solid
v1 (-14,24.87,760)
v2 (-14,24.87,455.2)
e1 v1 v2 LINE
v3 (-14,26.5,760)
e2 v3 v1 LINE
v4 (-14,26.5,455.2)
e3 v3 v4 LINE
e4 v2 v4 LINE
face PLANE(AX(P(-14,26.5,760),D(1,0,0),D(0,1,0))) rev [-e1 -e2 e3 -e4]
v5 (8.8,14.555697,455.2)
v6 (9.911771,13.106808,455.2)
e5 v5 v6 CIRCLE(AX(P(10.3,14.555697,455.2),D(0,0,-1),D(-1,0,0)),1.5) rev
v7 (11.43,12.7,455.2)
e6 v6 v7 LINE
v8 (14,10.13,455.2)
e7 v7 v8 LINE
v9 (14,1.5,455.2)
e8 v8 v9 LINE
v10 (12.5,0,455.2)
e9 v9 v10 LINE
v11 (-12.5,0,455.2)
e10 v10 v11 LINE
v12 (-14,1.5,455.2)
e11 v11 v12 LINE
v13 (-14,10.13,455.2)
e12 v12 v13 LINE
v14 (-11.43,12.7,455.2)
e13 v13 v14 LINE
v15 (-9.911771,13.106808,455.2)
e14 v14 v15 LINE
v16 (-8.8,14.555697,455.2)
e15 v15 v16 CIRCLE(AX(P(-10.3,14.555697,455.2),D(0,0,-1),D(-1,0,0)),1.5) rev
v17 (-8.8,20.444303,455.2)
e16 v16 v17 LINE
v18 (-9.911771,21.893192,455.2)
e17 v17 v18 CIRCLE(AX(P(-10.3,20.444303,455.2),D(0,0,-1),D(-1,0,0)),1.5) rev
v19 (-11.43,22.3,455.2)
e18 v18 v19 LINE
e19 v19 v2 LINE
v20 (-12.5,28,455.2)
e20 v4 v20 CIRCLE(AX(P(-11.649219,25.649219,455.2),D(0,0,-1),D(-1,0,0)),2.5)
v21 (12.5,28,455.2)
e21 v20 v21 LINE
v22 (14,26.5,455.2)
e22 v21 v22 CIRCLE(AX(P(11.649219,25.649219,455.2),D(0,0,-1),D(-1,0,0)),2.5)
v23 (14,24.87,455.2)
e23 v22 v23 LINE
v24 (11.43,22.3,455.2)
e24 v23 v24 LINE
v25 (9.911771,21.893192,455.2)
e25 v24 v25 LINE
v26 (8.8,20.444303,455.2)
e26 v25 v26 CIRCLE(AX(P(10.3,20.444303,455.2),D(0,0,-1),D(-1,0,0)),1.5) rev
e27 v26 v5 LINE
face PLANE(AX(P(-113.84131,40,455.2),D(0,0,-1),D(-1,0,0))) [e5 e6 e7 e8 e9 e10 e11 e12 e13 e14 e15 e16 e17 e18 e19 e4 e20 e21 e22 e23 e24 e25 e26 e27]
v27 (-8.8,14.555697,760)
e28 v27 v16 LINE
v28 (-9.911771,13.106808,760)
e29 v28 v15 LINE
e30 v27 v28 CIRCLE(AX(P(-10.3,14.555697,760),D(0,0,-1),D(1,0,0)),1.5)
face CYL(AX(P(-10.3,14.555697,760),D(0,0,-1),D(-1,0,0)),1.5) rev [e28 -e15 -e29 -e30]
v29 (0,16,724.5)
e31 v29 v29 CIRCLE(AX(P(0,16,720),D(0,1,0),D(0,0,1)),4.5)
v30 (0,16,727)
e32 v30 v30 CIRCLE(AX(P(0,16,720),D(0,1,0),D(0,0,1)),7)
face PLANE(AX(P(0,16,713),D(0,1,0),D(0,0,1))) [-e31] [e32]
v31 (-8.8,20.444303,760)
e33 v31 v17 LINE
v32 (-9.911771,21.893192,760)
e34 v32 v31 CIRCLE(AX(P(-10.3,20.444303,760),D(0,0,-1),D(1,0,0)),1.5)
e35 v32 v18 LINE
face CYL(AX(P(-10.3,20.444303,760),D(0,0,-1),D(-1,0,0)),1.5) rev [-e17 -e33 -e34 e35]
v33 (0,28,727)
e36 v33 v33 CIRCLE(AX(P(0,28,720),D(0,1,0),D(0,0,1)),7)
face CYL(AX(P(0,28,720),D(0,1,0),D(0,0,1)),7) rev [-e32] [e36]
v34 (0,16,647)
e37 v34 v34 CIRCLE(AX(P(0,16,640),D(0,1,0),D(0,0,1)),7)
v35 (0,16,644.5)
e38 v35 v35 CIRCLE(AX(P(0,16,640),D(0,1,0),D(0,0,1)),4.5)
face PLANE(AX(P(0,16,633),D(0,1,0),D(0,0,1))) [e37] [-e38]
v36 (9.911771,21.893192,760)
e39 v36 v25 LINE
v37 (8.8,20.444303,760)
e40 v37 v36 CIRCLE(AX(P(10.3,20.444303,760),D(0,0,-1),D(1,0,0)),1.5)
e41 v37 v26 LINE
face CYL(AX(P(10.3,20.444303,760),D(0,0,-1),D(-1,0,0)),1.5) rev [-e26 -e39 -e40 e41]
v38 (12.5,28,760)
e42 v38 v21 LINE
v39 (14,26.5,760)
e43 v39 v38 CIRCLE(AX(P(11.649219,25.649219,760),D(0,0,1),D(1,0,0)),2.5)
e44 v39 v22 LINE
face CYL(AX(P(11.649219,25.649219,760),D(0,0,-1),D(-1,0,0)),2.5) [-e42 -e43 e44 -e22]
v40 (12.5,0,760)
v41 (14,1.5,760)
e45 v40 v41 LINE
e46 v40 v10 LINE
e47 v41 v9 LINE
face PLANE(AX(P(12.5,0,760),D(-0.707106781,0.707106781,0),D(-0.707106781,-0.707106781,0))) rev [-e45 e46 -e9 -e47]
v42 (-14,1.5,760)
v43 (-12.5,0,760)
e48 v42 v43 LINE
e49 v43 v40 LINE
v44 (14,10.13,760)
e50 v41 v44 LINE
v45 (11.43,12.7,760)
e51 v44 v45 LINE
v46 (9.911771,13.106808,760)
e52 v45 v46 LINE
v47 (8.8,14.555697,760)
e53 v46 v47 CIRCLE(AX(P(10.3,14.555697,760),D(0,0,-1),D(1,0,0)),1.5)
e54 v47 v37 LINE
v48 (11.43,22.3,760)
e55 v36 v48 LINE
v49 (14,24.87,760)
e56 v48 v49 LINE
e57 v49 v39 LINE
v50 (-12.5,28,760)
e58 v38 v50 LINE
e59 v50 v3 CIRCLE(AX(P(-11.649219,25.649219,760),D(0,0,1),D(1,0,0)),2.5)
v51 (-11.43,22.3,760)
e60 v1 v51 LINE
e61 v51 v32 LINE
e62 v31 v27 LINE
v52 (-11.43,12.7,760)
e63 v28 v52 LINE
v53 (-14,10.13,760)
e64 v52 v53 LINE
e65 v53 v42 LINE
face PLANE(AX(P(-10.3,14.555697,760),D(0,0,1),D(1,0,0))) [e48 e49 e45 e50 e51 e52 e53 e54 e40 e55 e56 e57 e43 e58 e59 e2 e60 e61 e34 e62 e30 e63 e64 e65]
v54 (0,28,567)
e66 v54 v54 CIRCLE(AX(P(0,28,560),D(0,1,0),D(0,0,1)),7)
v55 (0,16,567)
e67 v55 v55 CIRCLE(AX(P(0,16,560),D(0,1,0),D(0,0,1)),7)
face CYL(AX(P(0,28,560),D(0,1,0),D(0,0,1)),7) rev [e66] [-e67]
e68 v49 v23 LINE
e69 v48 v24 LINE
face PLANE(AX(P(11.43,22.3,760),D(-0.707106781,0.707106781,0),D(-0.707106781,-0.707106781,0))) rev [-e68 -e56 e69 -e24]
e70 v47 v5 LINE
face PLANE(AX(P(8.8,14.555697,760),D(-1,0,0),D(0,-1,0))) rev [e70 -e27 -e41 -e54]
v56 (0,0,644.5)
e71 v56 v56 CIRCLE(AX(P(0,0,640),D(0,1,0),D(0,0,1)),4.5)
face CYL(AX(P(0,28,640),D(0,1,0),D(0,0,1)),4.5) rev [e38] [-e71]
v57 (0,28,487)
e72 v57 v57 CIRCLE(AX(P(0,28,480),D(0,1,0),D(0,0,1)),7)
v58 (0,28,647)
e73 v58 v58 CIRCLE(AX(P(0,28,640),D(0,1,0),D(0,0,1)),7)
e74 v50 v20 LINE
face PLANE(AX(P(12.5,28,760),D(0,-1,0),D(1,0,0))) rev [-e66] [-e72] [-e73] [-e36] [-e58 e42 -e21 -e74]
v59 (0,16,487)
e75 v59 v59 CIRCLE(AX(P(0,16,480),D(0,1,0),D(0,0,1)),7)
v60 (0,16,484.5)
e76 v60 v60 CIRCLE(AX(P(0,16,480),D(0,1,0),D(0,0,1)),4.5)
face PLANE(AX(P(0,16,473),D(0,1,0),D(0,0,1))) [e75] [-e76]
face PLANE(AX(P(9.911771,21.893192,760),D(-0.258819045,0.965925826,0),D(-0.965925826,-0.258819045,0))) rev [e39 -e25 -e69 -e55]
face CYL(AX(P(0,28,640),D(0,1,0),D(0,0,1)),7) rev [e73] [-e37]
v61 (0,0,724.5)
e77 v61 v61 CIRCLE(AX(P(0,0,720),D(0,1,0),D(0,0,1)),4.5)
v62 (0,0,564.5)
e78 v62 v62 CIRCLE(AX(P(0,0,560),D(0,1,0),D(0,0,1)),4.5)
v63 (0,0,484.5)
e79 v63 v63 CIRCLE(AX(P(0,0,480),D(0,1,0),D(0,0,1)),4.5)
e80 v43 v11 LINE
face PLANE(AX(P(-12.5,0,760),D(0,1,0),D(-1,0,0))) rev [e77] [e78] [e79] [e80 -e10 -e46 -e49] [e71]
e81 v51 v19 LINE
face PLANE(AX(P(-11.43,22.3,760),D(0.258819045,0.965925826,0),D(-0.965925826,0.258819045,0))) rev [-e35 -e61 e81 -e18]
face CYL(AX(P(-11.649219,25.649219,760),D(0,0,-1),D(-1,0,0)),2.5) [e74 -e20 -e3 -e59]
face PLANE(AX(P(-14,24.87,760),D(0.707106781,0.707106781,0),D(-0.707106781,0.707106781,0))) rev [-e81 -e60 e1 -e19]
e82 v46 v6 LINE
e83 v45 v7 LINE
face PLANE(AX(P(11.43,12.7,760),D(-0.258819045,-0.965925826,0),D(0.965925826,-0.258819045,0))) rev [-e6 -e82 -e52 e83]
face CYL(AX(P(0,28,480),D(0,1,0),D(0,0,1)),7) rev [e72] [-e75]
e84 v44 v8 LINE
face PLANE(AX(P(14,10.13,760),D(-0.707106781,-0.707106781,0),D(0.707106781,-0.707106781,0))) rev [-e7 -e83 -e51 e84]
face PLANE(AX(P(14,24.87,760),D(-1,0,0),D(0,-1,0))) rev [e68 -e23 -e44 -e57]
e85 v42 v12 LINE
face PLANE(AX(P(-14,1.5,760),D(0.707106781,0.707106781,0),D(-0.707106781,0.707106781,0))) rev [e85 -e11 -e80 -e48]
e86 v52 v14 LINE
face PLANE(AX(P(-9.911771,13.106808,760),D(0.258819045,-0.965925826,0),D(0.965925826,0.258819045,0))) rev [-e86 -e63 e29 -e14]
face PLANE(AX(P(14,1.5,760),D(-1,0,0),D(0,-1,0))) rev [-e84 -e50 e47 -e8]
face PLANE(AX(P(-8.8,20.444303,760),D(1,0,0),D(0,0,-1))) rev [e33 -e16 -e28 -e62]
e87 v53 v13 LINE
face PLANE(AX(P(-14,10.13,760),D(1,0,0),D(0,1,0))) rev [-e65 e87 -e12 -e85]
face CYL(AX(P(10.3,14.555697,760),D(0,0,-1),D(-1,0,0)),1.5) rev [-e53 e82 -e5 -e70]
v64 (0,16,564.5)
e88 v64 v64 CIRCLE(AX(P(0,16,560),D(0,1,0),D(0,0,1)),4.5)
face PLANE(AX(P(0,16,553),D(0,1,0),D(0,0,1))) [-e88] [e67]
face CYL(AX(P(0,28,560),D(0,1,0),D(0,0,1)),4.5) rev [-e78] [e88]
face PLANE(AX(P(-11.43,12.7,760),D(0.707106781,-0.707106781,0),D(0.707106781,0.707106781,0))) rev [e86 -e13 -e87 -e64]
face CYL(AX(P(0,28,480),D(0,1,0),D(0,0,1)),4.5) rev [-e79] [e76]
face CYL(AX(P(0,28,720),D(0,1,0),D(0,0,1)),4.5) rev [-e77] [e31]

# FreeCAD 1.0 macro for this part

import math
import FreeCAD as App
import Part
import Sketcher
Q = App.Units.Quantity

doc = App.newDocument("Part")
body = doc.addObject("PartDesign::Body", "Body")

sketch1 = body.newObject("Sketcher::SketchObject", "Sketch")
sketch1.AttachmentSupport = (doc.getObject("XY_Plane"), [""])
sketch1.MapMode = "FlatFace"
sketch1.addGeometry(Part.LineSegment(App.Vector(-9.911771, 13.106808, 0), App.Vector(-11.43, 12.7, 0)), False)
sketch1.addGeometry(Part.LineSegment(App.Vector(-11.43, 12.7, 0), App.Vector(-14, 10.13, 0)), False)
sketch1.addGeometry(Part.LineSegment(App.Vector(-14, 10.13, 0), App.Vector(-14, 1.5, 0)), False)
sketch1.addGeometry(Part.LineSegment(App.Vector(-14, 1.5, 0), App.Vector(-12.5, 0, 0)), False)
sketch1.addGeometry(Part.LineSegment(App.Vector(-12.5, 0, 0), App.Vector(12.5, 0, 0)), False)
sketch1.addGeometry(Part.LineSegment(App.Vector(12.5, 0, 0), App.Vector(14, 1.5, 0)), False)
sketch1.addGeometry(Part.LineSegment(App.Vector(14, 1.5, 0), App.Vector(14, 10.13, 0)), False)
sketch1.addGeometry(Part.LineSegment(App.Vector(14, 10.13, 0), App.Vector(11.43, 12.7, 0)), False)
sketch1.addGeometry(Part.LineSegment(App.Vector(11.43, 12.7, 0), App.Vector(9.911771, 13.106808, 0)), False)
sketch1.addGeometry(Part.ArcOfCircle(Part.Circle(App.Vector(10.3, 14.555697, 0), App.Vector(0, 0, 1), 1.5), math.radians(-180), math.radians(-105)), False)
sketch1.addGeometry(Part.LineSegment(App.Vector(8.8, 14.555697, 0), App.Vector(8.8, 20.444303, 0)), False)
sketch1.addGeometry(Part.ArcOfCircle(Part.Circle(App.Vector(10.3, 20.444303, 0), App.Vector(0, 0, 1), 1.5), math.radians(105), math.radians(180)), False)
sketch1.addGeometry(Part.LineSegment(App.Vector(9.911771, 21.893192, 0), App.Vector(11.43, 22.3, 0)), False)
sketch1.addGeometry(Part.LineSegment(App.Vector(11.43, 22.3, 0), App.Vector(14, 24.87, 0)), False)
sketch1.addGeometry(Part.LineSegment(App.Vector(14, 24.87, 0), App.Vector(14, 26.5, 0)), False)
sketch1.addGeometry(Part.ArcOfCircle(Part.Circle(App.Vector(11.649219, 25.649219, 0), App.Vector(0, 0, 1), 2.5), math.radians(19.89591), math.radians(70.10409)), False)
sketch1.addGeometry(Part.LineSegment(App.Vector(12.5, 28, 0), App.Vector(-12.5, 28, 0)), False)
sketch1.addGeometry(Part.ArcOfCircle(Part.Circle(App.Vector(-11.649219, 25.649219, 0), App.Vector(0, 0, 1), 2.5), math.radians(109.89591), math.radians(160.10409)), False)
sketch1.addGeometry(Part.LineSegment(App.Vector(-14, 26.5, 0), App.Vector(-14, 24.87, 0)), False)
sketch1.addGeometry(Part.LineSegment(App.Vector(-14, 24.87, 0), App.Vector(-11.43, 22.3, 0)), False)
sketch1.addGeometry(Part.LineSegment(App.Vector(-11.43, 22.3, 0), App.Vector(-9.911771, 21.893192, 0)), False)
sketch1.addGeometry(Part.ArcOfCircle(Part.Circle(App.Vector(-10.3, 20.444303, 0), App.Vector(0, 0, 1), 1.5), math.radians(0), math.radians(75)), False)
sketch1.addGeometry(Part.LineSegment(App.Vector(-8.8, 20.444303, 0), App.Vector(-8.8, 14.555697, 0)), False)
sketch1.addGeometry(Part.ArcOfCircle(Part.Circle(App.Vector(-10.3, 14.555697, 0), App.Vector(0, 0, 1), 1.5), math.radians(-75), math.radians(0)), False)
sketch1.addConstraint(Sketcher.Constraint("Coincident", 0, 2, 1, 1))
sketch1.addConstraint(Sketcher.Constraint("Coincident", 1, 2, 2, 1))
sketch1.addConstraint(Sketcher.Constraint("Coincident", 2, 2, 3, 1))
sketch1.addConstraint(Sketcher.Constraint("Coincident", 3, 2, 4, 1))
sketch1.addConstraint(Sketcher.Constraint("Coincident", 4, 2, 5, 1))
sketch1.addConstraint(Sketcher.Constraint("Coincident", 5, 2, 6, 1))
sketch1.addConstraint(Sketcher.Constraint("Coincident", 6, 2, 7, 1))
sketch1.addConstraint(Sketcher.Constraint("Coincident", 7, 2, 8, 1))
sketch1.addConstraint(Sketcher.Constraint("Tangent", 8, 2, 9, 2))
sketch1.addConstraint(Sketcher.Constraint("Tangent", 9, 1, 10, 1))
sketch1.addConstraint(Sketcher.Constraint("Tangent", 10, 2, 11, 2))
sketch1.addConstraint(Sketcher.Constraint("Tangent", 11, 1, 12, 1))
sketch1.addConstraint(Sketcher.Constraint("Coincident", 12, 2, 13, 1))
sketch1.addConstraint(Sketcher.Constraint("Coincident", 13, 2, 14, 1))
sketch1.addConstraint(Sketcher.Constraint("Coincident", 14, 2, 15, 1))
sketch1.addConstraint(Sketcher.Constraint("Coincident", 15, 2, 16, 1))
sketch1.addConstraint(Sketcher.Constraint("Coincident", 16, 2, 17, 1))
sketch1.addConstraint(Sketcher.Constraint("Coincident", 17, 2, 18, 1))
sketch1.addConstraint(Sketcher.Constraint("Coincident", 18, 2, 19, 1))
sketch1.addConstraint(Sketcher.Constraint("Coincident", 19, 2, 20, 1))
sketch1.addConstraint(Sketcher.Constraint("Tangent", 20, 2, 21, 2))
sketch1.addConstraint(Sketcher.Constraint("Tangent", 21, 1, 22, 1))
sketch1.addConstraint(Sketcher.Constraint("Tangent", 22, 2, 23, 2))
sketch1.addConstraint(Sketcher.Constraint("Tangent", 23, 1, 0, 1))
sketch1.addConstraint(Sketcher.Constraint("Vertical", 2))
sketch1.addConstraint(Sketcher.Constraint("Horizontal", 4))
sketch1.addConstraint(Sketcher.Constraint("Vertical", 6))
sketch1.addConstraint(Sketcher.Constraint("Vertical", 10))
sketch1.addConstraint(Sketcher.Constraint("Vertical", 14))
sketch1.addConstraint(Sketcher.Constraint("Horizontal", 16))
sketch1.addConstraint(Sketcher.Constraint("Vertical", 18))
sketch1.addConstraint(Sketcher.Constraint("Vertical", 22))
sketch1.addConstraint(Sketcher.Constraint("Equal", 9, 11))
sketch1.addConstraint(Sketcher.Constraint("Equal", 15, 17))
sketch1.addConstraint(Sketcher.Constraint("Equal", 11, 21))
sketch1.addConstraint(Sketcher.Constraint("Equal", 21, 23))
sketch1.addConstraint(Sketcher.Constraint("Symmetric", 3, 2, 4, 2, -1, 1))
sketch1.addConstraint(Sketcher.Constraint("Symmetric", 15, 3, 17, 3, -2))
sketch1.addConstraint(Sketcher.Constraint("Symmetric", 11, 3, 21, 3, -2))
sketch1.addConstraint(Sketcher.Constraint("Symmetric", 2, 2, 5, 2, -2))
sketch1.addConstraint(Sketcher.Constraint("Symmetric", 0, 2, 7, 2, -2))
sketch1.addConstraint(Sketcher.Constraint("Symmetric", 13, 2, 18, 2, -2))
sketch1.addConstraint(Sketcher.Constraint("Symmetric", 12, 2, 19, 2, -2))
sketch1.addConstraint(Sketcher.Constraint("Perpendicular", 1, 3))
sketch1.addConstraint(Sketcher.Constraint("Perpendicular", 3, 5))
sketch1.addConstraint(Sketcher.Constraint("Perpendicular", 5, 7))
sketch1.addConstraint(Sketcher.Constraint("Parallel", 0, 12))
sketch1.addConstraint(Sketcher.Constraint("Perpendicular", 7, 13))
sketch1.addConstraint(Sketcher.Constraint("Parallel", 8, 20))
sketch1.addConstraint(Sketcher.Constraint("Vertical", 7, 2, 12, 2))
sketch1.addConstraint(Sketcher.Constraint("Vertical", 6, 2, 13, 2))
sketch1.addConstraint(Sketcher.Constraint("Vertical", 4, 2, 15, 2))
sketch1.addConstraint(Sketcher.Constraint("Radius", 9, Q("1.5 mm")))
sketch1.addConstraint(Sketcher.Constraint("Radius", 15, Q("2.5 mm")))
sketch1.addConstraint(Sketcher.Constraint("DistanceX", 4, 1, 4, 2, Q("25 mm")))
sketch1.addConstraint(Sketcher.Constraint("Angle", 0, Q("-165 deg")))
sketch1.addConstraint(Sketcher.Constraint("DistanceX", 1, 2, -1, 1, Q("14 mm")))
sketch1.addConstraint(Sketcher.Constraint("DistanceY", -1, 1, 15, 2, Q("28 mm")))
sketch1.addConstraint(Sketcher.Constraint("DistanceY", 2, 2, 2, 1, Q("8.63 mm")))
sketch1.addConstraint(Sketcher.Constraint("DistanceY", 14, 1, 14, 2, Q("1.63 mm")))
sketch1.addConstraint(Sketcher.Constraint("DistanceX", -1, 1, 9, 3, Q("10.3 mm")))
sketch1.addConstraint(Sketcher.Constraint("DistanceY", -1, 1, 0, 2, Q("12.7 mm")))
sketch1.addConstraint(Sketcher.Constraint("DistanceY", -1, 1, 12, 2, Q("22.3 mm")))
pad1 = body.newObject("PartDesign::Pad", "Pad")
pad1.Profile = sketch1
pad1.Length = 1520
pad1.Midplane = True

sketch2 = body.newObject("Sketcher::SketchObject", "Sketch001")
sketch2.AttachmentSupport = (doc.getObject("YZ_Plane"), [""])
sketch2.MapMode = "FlatFace"
sketch2.addGeometry(Part.LineSegment(App.Vector(28, 713, 0), App.Vector(28, 720, 0)), False)
sketch2.addGeometry(Part.LineSegment(App.Vector(28, 720, 0), App.Vector(0, 720, 0)), False)
sketch2.addGeometry(Part.LineSegment(App.Vector(0, 720, 0), App.Vector(0, 715.5, 0)), False)
sketch2.addGeometry(Part.LineSegment(App.Vector(0, 715.5, 0), App.Vector(16, 715.5, 0)), False)
sketch2.addGeometry(Part.LineSegment(App.Vector(16, 715.5, 0), App.Vector(16, 713, 0)), False)
sketch2.addGeometry(Part.LineSegment(App.Vector(16, 713, 0), App.Vector(28, 713, 0)), False)
sketch2.addGeometry(Part.LineSegment(App.Vector(28, 720, 0), App.Vector(0, 720, 0)), True)
sketch2.addConstraint(Sketcher.Constraint("Coincident", 0, 2, 1, 1))
sketch2.addConstraint(Sketcher.Constraint("Coincident", 1, 2, 2, 1))
sketch2.addConstraint(Sketcher.Constraint("Coincident", 2, 2, 3, 1))
sketch2.addConstraint(Sketcher.Constraint("Coincident", 3, 2, 4, 1))
sketch2.addConstraint(Sketcher.Constraint("Coincident", 4, 2, 5, 1))
sketch2.addConstraint(Sketcher.Constraint("Coincident", 5, 2, 0, 1))
sketch2.addConstraint(Sketcher.Constraint("Vertical", 0))
sketch2.addConstraint(Sketcher.Constraint("Horizontal", 1))
sketch2.addConstraint(Sketcher.Constraint("Vertical", 2))
sketch2.addConstraint(Sketcher.Constraint("Horizontal", 3))
sketch2.addConstraint(Sketcher.Constraint("Vertical", 4))
sketch2.addConstraint(Sketcher.Constraint("Horizontal", 5))
sketch2.addConstraint(Sketcher.Constraint("Horizontal", 6))
sketch2.addConstraint(Sketcher.Constraint("Coincident", 6, 1, 0, 2))
sketch2.addConstraint(Sketcher.Constraint("PointOnObject", 1, 2, -2))
sketch2.addConstraint(Sketcher.Constraint("PointOnObject", 6, 2, -2))
sketch2.addConstraint(Sketcher.Constraint("DistanceX", 1, 2, 1, 1, Q("28 mm")))
sketch2.addConstraint(Sketcher.Constraint("DistanceX", 3, 1, 3, 2, Q("16 mm")))
sketch2.addConstraint(Sketcher.Constraint("DistanceY", 0, 1, 0, 2, Q("7 mm")))
sketch2.addConstraint(Sketcher.Constraint("DistanceY", 2, 2, 2, 1, Q("4.5 mm")))
sketch2.addConstraint(Sketcher.Constraint("DistanceY", -1, 1, 0, 2, Q("720 mm")))
groove = body.newObject("PartDesign::Groove", "Groove")
groove.Profile = sketch2
groove.ReferenceAxis = (sketch2, ["Axis0"])
groove.Angle = 360
doc.recompute()

linearpattern = body.newObject("PartDesign::LinearPattern", "LinearPattern")
linearpattern.Originals = [groove]
linearpattern.Direction = (doc.getObject("Z_Axis"), [""])
linearpattern.Mode = "offset"
linearpattern.Offset = 80
linearpattern.Occurrences = 2
linearpattern.Reversed = True
body.Tip = linearpattern
doc.recompute()

mirrored = body.newObject("PartDesign::Mirrored", "Mirrored")
mirrored.Originals = [groove]
mirrored.MirrorPlane = (doc.getObject("XY_Plane"), [""])
body.Tip = mirrored

sketch3 = body.newObject("Sketcher::SketchObject", "Sketch002")
sketch3.AttachmentSupport = (doc.getObject("YZ_Plane"), [""])
sketch3.MapMode = "FlatFace"
sketch3.addGeometry(Part.LineSegment(App.Vector(28, -640, 0), App.Vector(28, -633, 0)), False)
sketch3.addGeometry(Part.LineSegment(App.Vector(28, -633, 0), App.Vector(16, -633, 0)), False)
sketch3.addGeometry(Part.LineSegment(App.Vector(16, -633, 0), App.Vector(16, -635.5, 0)), False)
sketch3.addGeometry(Part.LineSegment(App.Vector(16, -635.5, 0), App.Vector(0, -635.5, 0)), False)
sketch3.addGeometry(Part.LineSegment(App.Vector(0, -635.5, 0), App.Vector(0, -640, 0)), False)
sketch3.addGeometry(Part.LineSegment(App.Vector(0, -640, 0), App.Vector(28, -640, 0)), False)
sketch3.addGeometry(Part.LineSegment(App.Vector(0, -640, 0), App.Vector(28, -640, 0)), True)
sketch3.addConstraint(Sketcher.Constraint("Coincident", 0, 2, 1, 1))
sketch3.addConstraint(Sketcher.Constraint("Coincident", 1, 2, 2, 1))
sketch3.addConstraint(Sketcher.Constraint("Coincident", 2, 2, 3, 1))
sketch3.addConstraint(Sketcher.Constraint("Coincident", 3, 2, 4, 1))
sketch3.addConstraint(Sketcher.Constraint("Coincident", 4, 2, 5, 1))
sketch3.addConstraint(Sketcher.Constraint("Coincident", 5, 2, 0, 1))
sketch3.addConstraint(Sketcher.Constraint("Vertical", 0))
sketch3.addConstraint(Sketcher.Constraint("Horizontal", 1))
sketch3.addConstraint(Sketcher.Constraint("Vertical", 2))
sketch3.addConstraint(Sketcher.Constraint("Horizontal", 3))
sketch3.addConstraint(Sketcher.Constraint("Vertical", 4))
sketch3.addConstraint(Sketcher.Constraint("Horizontal", 5))
sketch3.addConstraint(Sketcher.Constraint("Horizontal", 6))
sketch3.addConstraint(Sketcher.Constraint("Coincident", 6, 1, 4, 2))
sketch3.addConstraint(Sketcher.Constraint("PointOnObject", 3, 2, -2))
sketch3.addConstraint(Sketcher.Constraint("Vertical", 0, 2, 6, 2))
sketch3.addConstraint(Sketcher.Constraint("DistanceX", 1, 2, 1, 1, Q("12 mm")))
sketch3.addConstraint(Sketcher.Constraint("DistanceX", 3, 2, 3, 1, Q("16 mm")))
sketch3.addConstraint(Sketcher.Constraint("DistanceY", 0, 1, 0, 2, Q("7 mm")))
sketch3.addConstraint(Sketcher.Constraint("DistanceY", 2, 2, 2, 1, Q("2.5 mm")))
sketch3.addConstraint(Sketcher.Constraint("DistanceY", 0, 2, -1, 1, Q("633 mm")))
groove2 = body.newObject("PartDesign::Groove", "Groove001")
groove2.Profile = sketch3
groove2.ReferenceAxis = (sketch3, ["Axis0"])
groove2.Angle = 360
doc.recompute()

linearpattern2 = body.newObject("PartDesign::LinearPattern", "LinearPattern001")
linearpattern2.Originals = [groove]
linearpattern2.Direction = (doc.getObject("Z_Axis"), [""])
linearpattern2.Mode = "offset"
linearpattern2.Offset = 160
linearpattern2.Occurrences = 9
linearpattern2.Reversed = True
body.Tip = linearpattern2

sketch4 = body.newObject("Sketcher::SketchObject", "Sketch003")
sketch4.AttachmentSupport = (doc.getObject("YZ_Plane"), [""])
sketch4.MapMode = "FlatFace"
sketch4.addGeometry(Part.LineSegment(App.Vector(28, 473, 0), App.Vector(28, 480, 0)), False)
sketch4.addGeometry(Part.LineSegment(App.Vector(28, 480, 0), App.Vector(0, 480, 0)), False)
sketch4.addGeometry(Part.LineSegment(App.Vector(0, 480, 0), App.Vector(0, 475.5, 0)), False)
sketch4.addGeometry(Part.LineSegment(App.Vector(0, 475.5, 0), App.Vector(16, 475.5, 0)), False)
sketch4.addGeometry(Part.LineSegment(App.Vector(16, 475.5, 0), App.Vector(16, 473, 0)), False)
sketch4.addGeometry(Part.LineSegment(App.Vector(16, 473, 0), App.Vector(28, 473, 0)), False)
sketch4.addGeometry(Part.LineSegment(App.Vector(28, 480, 0), App.Vector(0, 480, 0)), True)
sketch4.addConstraint(Sketcher.Constraint("Coincident", 0, 2, 1, 1))
sketch4.addConstraint(Sketcher.Constraint("Coincident", 1, 2, 2, 1))
sketch4.addConstraint(Sketcher.Constraint("Coincident", 2, 2, 3, 1))
sketch4.addConstraint(Sketcher.Constraint("Coincident", 3, 2, 4, 1))
sketch4.addConstraint(Sketcher.Constraint("Coincident", 4, 2, 5, 1))
sketch4.addConstraint(Sketcher.Constraint("Coincident", 5, 2, 0, 1))
sketch4.addConstraint(Sketcher.Constraint("Vertical", 0))
sketch4.addConstraint(Sketcher.Constraint("Horizontal", 1))
sketch4.addConstraint(Sketcher.Constraint("Vertical", 2))
sketch4.addConstraint(Sketcher.Constraint("Horizontal", 3))
sketch4.addConstraint(Sketcher.Constraint("Vertical", 4))
sketch4.addConstraint(Sketcher.Constraint("Horizontal", 5))
sketch4.addConstraint(Sketcher.Constraint("Horizontal", 6))
sketch4.addConstraint(Sketcher.Constraint("Coincident", 6, 1, 0, 2))
sketch4.addConstraint(Sketcher.Constraint("PointOnObject", 1, 2, -2))
sketch4.addConstraint(Sketcher.Constraint("PointOnObject", 6, 2, -2))
sketch4.addConstraint(Sketcher.Constraint("DistanceX", 1, 2, 1, 1, Q("28 mm")))
sketch4.addConstraint(Sketcher.Constraint("DistanceX", 3, 1, 3, 2, Q("16 mm")))
sketch4.addConstraint(Sketcher.Constraint("DistanceY", 0, 1, 0, 2, Q("7 mm")))
sketch4.addConstraint(Sketcher.Constraint("DistanceY", 2, 2, 2, 1, Q("4.5 mm")))
sketch4.addConstraint(Sketcher.Constraint("DistanceY", -1, 1, 0, 2, Q("480 mm")))
groove3 = body.newObject("PartDesign::Groove", "Groove002")
groove3.Profile = sketch4
groove3.ReferenceAxis = (sketch4, ["Axis0"])
groove3.Angle = 360

sketch5 = body.newObject("Sketcher::SketchObject", "Sketch004")
sketch5.AttachmentSupport = (doc.getObject("YZ_Plane"), [""])
sketch5.MapMode = "FlatFace"
sketch5.addGeometry(Part.LineSegment(App.Vector(28, 313, 0), App.Vector(28, 320, 0)), False)
sketch5.addGeometry(Part.LineSegment(App.Vector(28, 320, 0), App.Vector(0, 320, 0)), False)
sketch5.addGeometry(Part.LineSegment(App.Vector(0, 320, 0), App.Vector(0, 315.5, 0)), False)
sketch5.addGeometry(Part.LineSegment(App.Vector(0, 315.5, 0), App.Vector(16, 315.5, 0)), False)
sketch5.addGeometry(Part.LineSegment(App.Vector(16, 315.5, 0), App.Vector(16, 313, 0)), False)
sketch5.addGeometry(Part.LineSegment(App.Vector(16, 313, 0), App.Vector(28, 313, 0)), False)
sketch5.addGeometry(Part.LineSegment(App.Vector(28, 320, 0), App.Vector(0, 320, 0)), True)
sketch5.addConstraint(Sketcher.Constraint("Coincident", 0, 2, 1, 1))
sketch5.addConstraint(Sketcher.Constraint("Coincident", 1, 2, 2, 1))
sketch5.addConstraint(Sketcher.Constraint("Coincident", 2, 2, 3, 1))
sketch5.addConstraint(Sketcher.Constraint("Coincident", 3, 2, 4, 1))
sketch5.addConstraint(Sketcher.Constraint("Coincident", 4, 2, 5, 1))
sketch5.addConstraint(Sketcher.Constraint("Coincident", 5, 2, 0, 1))
sketch5.addConstraint(Sketcher.Constraint("Vertical", 0))
sketch5.addConstraint(Sketcher.Constraint("Horizontal", 1))
sketch5.addConstraint(Sketcher.Constraint("Vertical", 2))
sketch5.addConstraint(Sketcher.Constraint("Horizontal", 3))
sketch5.addConstraint(Sketcher.Constraint("Vertical", 4))
sketch5.addConstraint(Sketcher.Constraint("Horizontal", 5))
sketch5.addConstraint(Sketcher.Constraint("Horizontal", 6))
sketch5.addConstraint(Sketcher.Constraint("Coincident", 6, 1, 0, 2))
sketch5.addConstraint(Sketcher.Constraint("PointOnObject", 1, 2, -2))
sketch5.addConstraint(Sketcher.Constraint("PointOnObject", 6, 2, -2))
sketch5.addConstraint(Sketcher.Constraint("DistanceX", 1, 2, 1, 1, Q("28 mm")))
sketch5.addConstraint(Sketcher.Constraint("DistanceX", 3, 1, 3, 2, Q("16 mm")))
sketch5.addConstraint(Sketcher.Constraint("DistanceY", 0, 1, 0, 2, Q("7 mm")))
sketch5.addConstraint(Sketcher.Constraint("DistanceY", 2, 2, 2, 1, Q("4.5 mm")))
sketch5.addConstraint(Sketcher.Constraint("DistanceY", -1, 1, 0, 2, Q("320 mm")))
groove4 = body.newObject("PartDesign::Groove", "Groove003")
groove4.Profile = sketch5
groove4.ReferenceAxis = (sketch5, ["Axis0"])
groove4.Angle = 360

sketch6 = body.newObject("Sketcher::SketchObject", "Sketch005")
sketch6.AttachmentSupport = (doc.getObject("YZ_Plane"), [""])
sketch6.MapMode = "FlatFace"
sketch6.addGeometry(Part.LineSegment(App.Vector(28, 153, 0), App.Vector(28, 160, 0)), False)
sketch6.addGeometry(Part.LineSegment(App.Vector(28, 160, 0), App.Vector(0, 160, 0)), False)
sketch6.addGeometry(Part.LineSegment(App.Vector(0, 160, 0), App.Vector(0, 155.5, 0)), False)
sketch6.addGeometry(Part.LineSegment(App.Vector(0, 155.5, 0), App.Vector(16, 155.5, 0)), False)
sketch6.addGeometry(Part.LineSegment(App.Vector(16, 155.5, 0), App.Vector(16, 153, 0)), False)
sketch6.addGeometry(Part.LineSegment(App.Vector(16, 153, 0), App.Vector(28, 153, 0)), False)
sketch6.addGeometry(Part.LineSegment(App.Vector(28, 160, 0), App.Vector(0, 160, 0)), True)
sketch6.addConstraint(Sketcher.Constraint("Coincident", 0, 2, 1, 1))
sketch6.addConstraint(Sketcher.Constraint("Coincident", 1, 2, 2, 1))
sketch6.addConstraint(Sketcher.Constraint("Coincident", 2, 2, 3, 1))
sketch6.addConstraint(Sketcher.Constraint("Coincident", 3, 2, 4, 1))
sketch6.addConstraint(Sketcher.Constraint("Coincident", 4, 2, 5, 1))
sketch6.addConstraint(Sketcher.Constraint("Coincident", 5, 2, 0, 1))
sketch6.addConstraint(Sketcher.Constraint("Vertical", 0))
sketch6.addConstraint(Sketcher.Constraint("Horizontal", 1))
sketch6.addConstraint(Sketcher.Constraint("Vertical", 2))
sketch6.addConstraint(Sketcher.Constraint("Horizontal", 3))
sketch6.addConstraint(Sketcher.Constraint("Vertical", 4))
sketch6.addConstraint(Sketcher.Constraint("Horizontal", 5))
sketch6.addConstraint(Sketcher.Constraint("Horizontal", 6))
sketch6.addConstraint(Sketcher.Constraint("Coincident", 6, 1, 0, 2))
sketch6.addConstraint(Sketcher.Constraint("PointOnObject", 1, 2, -2))
sketch6.addConstraint(Sketcher.Constraint("PointOnObject", 6, 2, -2))
sketch6.addConstraint(Sketcher.Constraint("DistanceX", 1, 2, 1, 1, Q("28 mm")))
sketch6.addConstraint(Sketcher.Constraint("DistanceX", 3, 1, 3, 2, Q("16 mm")))
sketch6.addConstraint(Sketcher.Constraint("DistanceY", 0, 1, 0, 2, Q("7 mm")))
sketch6.addConstraint(Sketcher.Constraint("DistanceY", 2, 2, 2, 1, Q("4.5 mm")))
sketch6.addConstraint(Sketcher.Constraint("DistanceY", -1, 1, 0, 2, Q("160 mm")))
groove5 = body.newObject("PartDesign::Groove", "Groove004")
groove5.Profile = sketch6
groove5.ReferenceAxis = (sketch6, ["Axis0"])
groove5.Angle = 360

sketch7 = body.newObject("Sketcher::SketchObject", "Sketch006")
sketch7.AttachmentSupport = (doc.getObject("YZ_Plane"), [""])
sketch7.MapMode = "FlatFace"
sketch7.addGeometry(Part.LineSegment(App.Vector(28, -7, 0), App.Vector(28, 0, 0)), False)
sketch7.addGeometry(Part.LineSegment(App.Vector(28, 0, 0), App.Vector(0, 0, 0)), False)
sketch7.addGeometry(Part.LineSegment(App.Vector(0, 0, 0), App.Vector(0, -4.5, 0)), False)
sketch7.addGeometry(Part.LineSegment(App.Vector(0, -4.5, 0), App.Vector(16, -4.5, 0)), False)
sketch7.addGeometry(Part.LineSegment(App.Vector(16, -4.5, 0), App.Vector(16, -7, 0)), False)
sketch7.addGeometry(Part.LineSegment(App.Vector(16, -7, 0), App.Vector(28, -7, 0)), False)
sketch7.addConstraint(Sketcher.Constraint("Coincident", 0, 2, 1, 1))
sketch7.addConstraint(Sketcher.Constraint("Coincident", 1, 2, 2, 1))
sketch7.addConstraint(Sketcher.Constraint("Coincident", 2, 2, 3, 1))
sketch7.addConstraint(Sketcher.Constraint("Coincident", 3, 2, 4, 1))
sketch7.addConstraint(Sketcher.Constraint("Coincident", 4, 2, 5, 1))
sketch7.addConstraint(Sketcher.Constraint("Coincident", 5, 2, 0, 1))
sketch7.addConstraint(Sketcher.Constraint("Vertical", 0))
sketch7.addConstraint(Sketcher.Constraint("Horizontal", 1))
sketch7.addConstraint(Sketcher.Constraint("Vertical", 2))
sketch7.addConstraint(Sketcher.Constraint("Horizontal", 3))
sketch7.addConstraint(Sketcher.Constraint("Vertical", 4))
sketch7.addConstraint(Sketcher.Constraint("Horizontal", 5))
sketch7.addConstraint(Sketcher.Constraint("Coincident", 1, 2, -1, 1))
sketch7.addConstraint(Sketcher.Constraint("DistanceX", 1, 2, 1, 1, Q("28 mm")))
sketch7.addConstraint(Sketcher.Constraint("DistanceX", 3, 1, 3, 2, Q("16 mm")))
sketch7.addConstraint(Sketcher.Constraint("DistanceY", 0, 1, 0, 2, Q("7 mm")))
sketch7.addConstraint(Sketcher.Constraint("DistanceY", 2, 2, 2, 1, Q("4.5 mm")))
groove6 = body.newObject("PartDesign::Groove", "Groove005")
groove6.Profile = sketch7
groove6.ReferenceAxis = (sketch7, ["H_Axis"])
groove6.Angle = 360

sketch8 = body.newObject("Sketcher::SketchObject", "Sketch007")
sketch8.AttachmentSupport = (doc.getObject("YZ_Plane"), [""])
sketch8.MapMode = "FlatFace"
sketch8.addGeometry(Part.LineSegment(App.Vector(28, -167, 0), App.Vector(28, -160, 0)), False)
sketch8.addGeometry(Part.LineSegment(App.Vector(28, -160, 0), App.Vector(0, -160, 0)), False)
sketch8.addGeometry(Part.LineSegment(App.Vector(0, -160, 0), App.Vector(0, -164.5, 0)), False)
sketch8.addGeometry(Part.LineSegment(App.Vector(0, -164.5, 0), App.Vector(16, -164.5, 0)), False)
sketch8.addGeometry(Part.LineSegment(App.Vector(16, -164.5, 0), App.Vector(16, -167, 0)), False)
sketch8.addGeometry(Part.LineSegment(App.Vector(16, -167, 0), App.Vector(28, -167, 0)), False)
sketch8.addGeometry(Part.LineSegment(App.Vector(28, -160, 0), App.Vector(0, -160, 0)), True)
sketch8.addConstraint(Sketcher.Constraint("Coincident", 0, 2, 1, 1))
sketch8.addConstraint(Sketcher.Constraint("Coincident", 1, 2, 2, 1))
sketch8.addConstraint(Sketcher.Constraint("Coincident", 2, 2, 3, 1))
sketch8.addConstraint(Sketcher.Constraint("Coincident", 3, 2, 4, 1))
sketch8.addConstraint(Sketcher.Constraint("Coincident", 4, 2, 5, 1))
sketch8.addConstraint(Sketcher.Constraint("Coincident", 5, 2, 0, 1))
sketch8.addConstraint(Sketcher.Constraint("Vertical", 0))
sketch8.addConstraint(Sketcher.Constraint("Horizontal", 1))
sketch8.addConstraint(Sketcher.Constraint("Vertical", 2))
sketch8.addConstraint(Sketcher.Constraint("Horizontal", 3))
sketch8.addConstraint(Sketcher.Constraint("Vertical", 4))
sketch8.addConstraint(Sketcher.Constraint("Horizontal", 5))
sketch8.addConstraint(Sketcher.Constraint("Horizontal", 6))
sketch8.addConstraint(Sketcher.Constraint("Coincident", 6, 1, 0, 2))
sketch8.addConstraint(Sketcher.Constraint("PointOnObject", 1, 2, -2))
sketch8.addConstraint(Sketcher.Constraint("PointOnObject", 6, 2, -2))
sketch8.addConstraint(Sketcher.Constraint("DistanceX", 1, 2, 1, 1, Q("28 mm")))
sketch8.addConstraint(Sketcher.Constraint("DistanceX", 3, 1, 3, 2, Q("16 mm")))
sketch8.addConstraint(Sketcher.Constraint("DistanceY", 0, 1, 0, 2, Q("7 mm")))
sketch8.addConstraint(Sketcher.Constraint("DistanceY", 2, 2, 2, 1, Q("4.5 mm")))
sketch8.addConstraint(Sketcher.Constraint("DistanceY", 0, 2, -1, 1, Q("160 mm")))
groove7 = body.newObject("PartDesign::Groove", "Groove006")
groove7.Profile = sketch8
groove7.ReferenceAxis = (sketch8, ["Axis0"])
groove7.Angle = 360

sketch9 = body.newObject("Sketcher::SketchObject", "Sketch008")
sketch9.AttachmentSupport = (doc.getObject("YZ_Plane"), [""])
sketch9.MapMode = "FlatFace"
sketch9.addGeometry(Part.LineSegment(App.Vector(28, -327, 0), App.Vector(28, -320, 0)), False)
sketch9.addGeometry(Part.LineSegment(App.Vector(28, -320, 0), App.Vector(0, -320, 0)), False)
sketch9.addGeometry(Part.LineSegment(App.Vector(0, -320, 0), App.Vector(0, -324.5, 0)), False)
sketch9.addGeometry(Part.LineSegment(App.Vector(0, -324.5, 0), App.Vector(16, -324.5, 0)), False)
sketch9.addGeometry(Part.LineSegment(App.Vector(16, -324.5, 0), App.Vector(16, -327, 0)), False)
sketch9.addGeometry(Part.LineSegment(App.Vector(16, -327, 0), App.Vector(28, -327, 0)), False)
sketch9.addGeometry(Part.LineSegment(App.Vector(28, -320, 0), App.Vector(0, -320, 0)), True)
sketch9.addConstraint(Sketcher.Constraint("Coincident", 0, 2, 1, 1))
sketch9.addConstraint(Sketcher.Constraint("Coincident", 1, 2, 2, 1))
sketch9.addConstraint(Sketcher.Constraint("Coincident", 2, 2, 3, 1))
sketch9.addConstraint(Sketcher.Constraint("Coincident", 3, 2, 4, 1))
sketch9.addConstraint(Sketcher.Constraint("Coincident", 4, 2, 5, 1))
sketch9.addConstraint(Sketcher.Constraint("Coincident", 5, 2, 0, 1))
sketch9.addConstraint(Sketcher.Constraint("Vertical", 0))
sketch9.addConstraint(Sketcher.Constraint("Horizontal", 1))
sketch9.addConstraint(Sketcher.Constraint("Vertical", 2))
sketch9.addConstraint(Sketcher.Constraint("Horizontal", 3))
sketch9.addConstraint(Sketcher.Constraint("Vertical", 4))
sketch9.addConstraint(Sketcher.Constraint("Horizontal", 5))
sketch9.addConstraint(Sketcher.Constraint("Horizontal", 6))
sketch9.addConstraint(Sketcher.Constraint("Coincident", 6, 1, 0, 2))
sketch9.addConstraint(Sketcher.Constraint("PointOnObject", 1, 2, -2))
sketch9.addConstraint(Sketcher.Constraint("PointOnObject", 6, 2, -2))
sketch9.addConstraint(Sketcher.Constraint("DistanceX", 1, 2, 1, 1, Q("28 mm")))
sketch9.addConstraint(Sketcher.Constraint("DistanceX", 3, 1, 3, 2, Q("16 mm")))
sketch9.addConstraint(Sketcher.Constraint("DistanceY", 0, 1, 0, 2, Q("7 mm")))
sketch9.addConstraint(Sketcher.Constraint("DistanceY", 2, 2, 2, 1, Q("4.5 mm")))
sketch9.addConstraint(Sketcher.Constraint("DistanceY", 0, 2, -1, 1, Q("320 mm")))
groove8 = body.newObject("PartDesign::Groove", "Groove007")
groove8.Profile = sketch9
groove8.ReferenceAxis = (sketch9, ["Axis0"])
groove8.Angle = 360

sketch10 = body.newObject("Sketcher::SketchObject", "Sketch009")
sketch10.AttachmentSupport = (doc.getObject("YZ_Plane"), [""])
sketch10.MapMode = "FlatFace"
sketch10.addGeometry(Part.LineSegment(App.Vector(28, -487, 0), App.Vector(28, -480, 0)), False)
sketch10.addGeometry(Part.LineSegment(App.Vector(28, -480, 0), App.Vector(0, -480, 0)), False)
sketch10.addGeometry(Part.LineSegment(App.Vector(0, -480, 0), App.Vector(0, -484.5, 0)), False)
sketch10.addGeometry(Part.LineSegment(App.Vector(0, -484.5, 0), App.Vector(16, -484.5, 0)), False)
sketch10.addGeometry(Part.LineSegment(App.Vector(16, -484.5, 0), App.Vector(16, -487, 0)), False)
sketch10.addGeometry(Part.LineSegment(App.Vector(16, -487, 0), App.Vector(28, -487, 0)), False)
sketch10.addGeometry(Part.LineSegment(App.Vector(28, -480, 0), App.Vector(0, -480, 0)), True)
sketch10.addConstraint(Sketcher.Constraint("Coincident", 0, 2, 1, 1))
sketch10.addConstraint(Sketcher.Constraint("Coincident", 1, 2, 2, 1))
sketch10.addConstraint(Sketcher.Constraint("Coincident", 2, 2, 3, 1))
sketch10.addConstraint(Sketcher.Constraint("Coincident", 3, 2, 4, 1))
sketch10.addConstraint(Sketcher.Constraint("Coincident", 4, 2, 5, 1))
sketch10.addConstraint(Sketcher.Constraint("Coincident", 5, 2, 0, 1))
sketch10.addConstraint(Sketcher.Constraint("Vertical", 0))
sketch10.addConstraint(Sketcher.Constraint("Horizontal", 1))
sketch10.addConstraint(Sketcher.Constraint("Vertical", 2))
sketch10.addConstraint(Sketcher.Constraint("Horizontal", 3))
sketch10.addConstraint(Sketcher.Constraint("Vertical", 4))
sketch10.addConstraint(Sketcher.Constraint("Horizontal", 5))
sketch10.addConstraint(Sketcher.Constraint("Horizontal", 6))
sketch10.addConstraint(Sketcher.Constraint("Coincident", 6, 1, 0, 2))
sketch10.addConstraint(Sketcher.Constraint("PointOnObject", 1, 2, -2))
sketch10.addConstraint(Sketcher.Constraint("PointOnObject", 6, 2, -2))
sketch10.addConstraint(Sketcher.Constraint("DistanceX", 1, 2, 1, 1, Q("28 mm")))
sketch10.addConstraint(Sketcher.Constraint("DistanceX", 3, 1, 3, 2, Q("16 mm")))
sketch10.addConstraint(Sketcher.Constraint("DistanceY", 0, 1, 0, 2, Q("7 mm")))
sketch10.addConstraint(Sketcher.Constraint("DistanceY", 2, 2, 2, 1, Q("4.5 mm")))
sketch10.addConstraint(Sketcher.Constraint("DistanceY", 0, 2, -1, 1, Q("480 mm")))
groove9 = body.newObject("PartDesign::Groove", "Groove008")
groove9.Profile = sketch10
groove9.ReferenceAxis = (sketch10, ["Axis0"])
groove9.Angle = 360

sketch11 = body.newObject("Sketcher::SketchObject", "Sketch010")
sketch11.AttachmentSupport = (doc.getObject("YZ_Plane"), [""])
sketch11.MapMode = "FlatFace"
sketch11.addGeometry(Part.LineSegment(App.Vector(28, -647, 0), App.Vector(28, -640, 0)), False)
sketch11.addGeometry(Part.LineSegment(App.Vector(28, -640, 0), App.Vector(0, -640, 0)), False)
sketch11.addGeometry(Part.LineSegment(App.Vector(0, -640, 0), App.Vector(0, -644.5, 0)), False)
sketch11.addGeometry(Part.LineSegment(App.Vector(0, -644.5, 0), App.Vector(16, -644.5, 0)), False)
sketch11.addGeometry(Part.LineSegment(App.Vector(16, -644.5, 0), App.Vector(16, -647, 0)), False)
sketch11.addGeometry(Part.LineSegment(App.Vector(16, -647, 0), App.Vector(28, -647, 0)), False)
sketch11.addGeometry(Part.LineSegment(App.Vector(28, -640, 0), App.Vector(0, -640, 0)), True)
sketch11.addConstraint(Sketcher.Constraint("Coincident", 0, 2, 1, 1))
sketch11.addConstraint(Sketcher.Constraint("Coincident", 1, 2, 2, 1))
sketch11.addConstraint(Sketcher.Constraint("Coincident", 2, 2, 3, 1))
sketch11.addConstraint(Sketcher.Constraint("Coincident", 3, 2, 4, 1))
sketch11.addConstraint(Sketcher.Constraint("Coincident", 4, 2, 5, 1))
sketch11.addConstraint(Sketcher.Constraint("Coincident", 5, 2, 0, 1))
sketch11.addConstraint(Sketcher.Constraint("Vertical", 0))
sketch11.addConstraint(Sketcher.Constraint("Horizontal", 1))
sketch11.addConstraint(Sketcher.Constraint("Vertical", 2))
sketch11.addConstraint(Sketcher.Constraint("Horizontal", 3))
sketch11.addConstraint(Sketcher.Constraint("Vertical", 4))
sketch11.addConstraint(Sketcher.Constraint("Horizontal", 5))
sketch11.addConstraint(Sketcher.Constraint("Horizontal", 6))
sketch11.addConstraint(Sketcher.Constraint("Coincident", 6, 1, 0, 2))
sketch11.addConstraint(Sketcher.Constraint("PointOnObject", 1, 2, -2))
sketch11.addConstraint(Sketcher.Constraint("PointOnObject", 6, 2, -2))
sketch11.addConstraint(Sketcher.Constraint("DistanceX", 1, 2, 1, 1, Q("28 mm")))
sketch11.addConstraint(Sketcher.Constraint("DistanceX", 3, 1, 3, 2, Q("16 mm")))
sketch11.addConstraint(Sketcher.Constraint("DistanceY", 0, 1, 0, 2, Q("7 mm")))
sketch11.addConstraint(Sketcher.Constraint("DistanceY", 2, 2, 2, 1, Q("4.5 mm")))
sketch11.addConstraint(Sketcher.Constraint("DistanceY", 0, 2, -1, 1, Q("640 mm")))
groove10 = body.newObject("PartDesign::Groove", "Groove009")
groove10.Profile = sketch11
groove10.ReferenceAxis = (sketch11, ["Axis0"])
groove10.Angle = 360

sketch12 = body.newObject("Sketcher::SketchObject", "Sketch011")
sketch12.AttachmentSupport = (doc.getObject("XZ_Plane"), [""])
sketch12.MapMode = "FlatFace"
sketch12.addGeometry(Part.LineSegment(App.Vector(-113.84131, -765.64991, 0), App.Vector(-113.84131, 455.2, 0)), False)
sketch12.addGeometry(Part.LineSegment(App.Vector(-113.84131, 455.2, 0), App.Vector(193.333949, 455.2, 0)), False)
sketch12.addGeometry(Part.LineSegment(App.Vector(193.333949, 455.2, 0), App.Vector(193.333949, -765.64991, 0)), False)
sketch12.addGeometry(Part.LineSegment(App.Vector(193.333949, -765.64991, 0), App.Vector(-113.84131, -765.64991, 0)), False)
sketch12.addConstraint(Sketcher.Constraint("Coincident", 0, 2, 1, 1))
sketch12.addConstraint(Sketcher.Constraint("Coincident", 1, 2, 2, 1))
sketch12.addConstraint(Sketcher.Constraint("Coincident", 2, 2, 3, 1))
sketch12.addConstraint(Sketcher.Constraint("Coincident", 3, 2, 0, 1))
sketch12.addConstraint(Sketcher.Constraint("Vertical", 0))
sketch12.addConstraint(Sketcher.Constraint("Horizontal", 1))
sketch12.addConstraint(Sketcher.Constraint("Vertical", 2))
sketch12.addConstraint(Sketcher.Constraint("Horizontal", 3))
sketch12.addConstraint(Sketcher.Constraint("DistanceY", -1, 1, 0, 2, Q("455.2 mm")))
sketch12.addConstraint(Sketcher.Constraint("DistanceX", 1, 1, 1, 2, Q("307.175259 mm")))
sketch12.addConstraint(Sketcher.Constraint("DistanceY", 0, 1, 0, 2, Q("1220.84991 mm")))
sketch12.addConstraint(Sketcher.Constraint("DistanceX", 0, 2, -1, 1, Q("113.84131 mm")))
pocket1 = body.newObject("PartDesign::Pocket", "Pocket")
pocket1.Profile = sketch12
pocket1.Type = "ThroughAll"
pocket1.Midplane = True

doc.recompute()
